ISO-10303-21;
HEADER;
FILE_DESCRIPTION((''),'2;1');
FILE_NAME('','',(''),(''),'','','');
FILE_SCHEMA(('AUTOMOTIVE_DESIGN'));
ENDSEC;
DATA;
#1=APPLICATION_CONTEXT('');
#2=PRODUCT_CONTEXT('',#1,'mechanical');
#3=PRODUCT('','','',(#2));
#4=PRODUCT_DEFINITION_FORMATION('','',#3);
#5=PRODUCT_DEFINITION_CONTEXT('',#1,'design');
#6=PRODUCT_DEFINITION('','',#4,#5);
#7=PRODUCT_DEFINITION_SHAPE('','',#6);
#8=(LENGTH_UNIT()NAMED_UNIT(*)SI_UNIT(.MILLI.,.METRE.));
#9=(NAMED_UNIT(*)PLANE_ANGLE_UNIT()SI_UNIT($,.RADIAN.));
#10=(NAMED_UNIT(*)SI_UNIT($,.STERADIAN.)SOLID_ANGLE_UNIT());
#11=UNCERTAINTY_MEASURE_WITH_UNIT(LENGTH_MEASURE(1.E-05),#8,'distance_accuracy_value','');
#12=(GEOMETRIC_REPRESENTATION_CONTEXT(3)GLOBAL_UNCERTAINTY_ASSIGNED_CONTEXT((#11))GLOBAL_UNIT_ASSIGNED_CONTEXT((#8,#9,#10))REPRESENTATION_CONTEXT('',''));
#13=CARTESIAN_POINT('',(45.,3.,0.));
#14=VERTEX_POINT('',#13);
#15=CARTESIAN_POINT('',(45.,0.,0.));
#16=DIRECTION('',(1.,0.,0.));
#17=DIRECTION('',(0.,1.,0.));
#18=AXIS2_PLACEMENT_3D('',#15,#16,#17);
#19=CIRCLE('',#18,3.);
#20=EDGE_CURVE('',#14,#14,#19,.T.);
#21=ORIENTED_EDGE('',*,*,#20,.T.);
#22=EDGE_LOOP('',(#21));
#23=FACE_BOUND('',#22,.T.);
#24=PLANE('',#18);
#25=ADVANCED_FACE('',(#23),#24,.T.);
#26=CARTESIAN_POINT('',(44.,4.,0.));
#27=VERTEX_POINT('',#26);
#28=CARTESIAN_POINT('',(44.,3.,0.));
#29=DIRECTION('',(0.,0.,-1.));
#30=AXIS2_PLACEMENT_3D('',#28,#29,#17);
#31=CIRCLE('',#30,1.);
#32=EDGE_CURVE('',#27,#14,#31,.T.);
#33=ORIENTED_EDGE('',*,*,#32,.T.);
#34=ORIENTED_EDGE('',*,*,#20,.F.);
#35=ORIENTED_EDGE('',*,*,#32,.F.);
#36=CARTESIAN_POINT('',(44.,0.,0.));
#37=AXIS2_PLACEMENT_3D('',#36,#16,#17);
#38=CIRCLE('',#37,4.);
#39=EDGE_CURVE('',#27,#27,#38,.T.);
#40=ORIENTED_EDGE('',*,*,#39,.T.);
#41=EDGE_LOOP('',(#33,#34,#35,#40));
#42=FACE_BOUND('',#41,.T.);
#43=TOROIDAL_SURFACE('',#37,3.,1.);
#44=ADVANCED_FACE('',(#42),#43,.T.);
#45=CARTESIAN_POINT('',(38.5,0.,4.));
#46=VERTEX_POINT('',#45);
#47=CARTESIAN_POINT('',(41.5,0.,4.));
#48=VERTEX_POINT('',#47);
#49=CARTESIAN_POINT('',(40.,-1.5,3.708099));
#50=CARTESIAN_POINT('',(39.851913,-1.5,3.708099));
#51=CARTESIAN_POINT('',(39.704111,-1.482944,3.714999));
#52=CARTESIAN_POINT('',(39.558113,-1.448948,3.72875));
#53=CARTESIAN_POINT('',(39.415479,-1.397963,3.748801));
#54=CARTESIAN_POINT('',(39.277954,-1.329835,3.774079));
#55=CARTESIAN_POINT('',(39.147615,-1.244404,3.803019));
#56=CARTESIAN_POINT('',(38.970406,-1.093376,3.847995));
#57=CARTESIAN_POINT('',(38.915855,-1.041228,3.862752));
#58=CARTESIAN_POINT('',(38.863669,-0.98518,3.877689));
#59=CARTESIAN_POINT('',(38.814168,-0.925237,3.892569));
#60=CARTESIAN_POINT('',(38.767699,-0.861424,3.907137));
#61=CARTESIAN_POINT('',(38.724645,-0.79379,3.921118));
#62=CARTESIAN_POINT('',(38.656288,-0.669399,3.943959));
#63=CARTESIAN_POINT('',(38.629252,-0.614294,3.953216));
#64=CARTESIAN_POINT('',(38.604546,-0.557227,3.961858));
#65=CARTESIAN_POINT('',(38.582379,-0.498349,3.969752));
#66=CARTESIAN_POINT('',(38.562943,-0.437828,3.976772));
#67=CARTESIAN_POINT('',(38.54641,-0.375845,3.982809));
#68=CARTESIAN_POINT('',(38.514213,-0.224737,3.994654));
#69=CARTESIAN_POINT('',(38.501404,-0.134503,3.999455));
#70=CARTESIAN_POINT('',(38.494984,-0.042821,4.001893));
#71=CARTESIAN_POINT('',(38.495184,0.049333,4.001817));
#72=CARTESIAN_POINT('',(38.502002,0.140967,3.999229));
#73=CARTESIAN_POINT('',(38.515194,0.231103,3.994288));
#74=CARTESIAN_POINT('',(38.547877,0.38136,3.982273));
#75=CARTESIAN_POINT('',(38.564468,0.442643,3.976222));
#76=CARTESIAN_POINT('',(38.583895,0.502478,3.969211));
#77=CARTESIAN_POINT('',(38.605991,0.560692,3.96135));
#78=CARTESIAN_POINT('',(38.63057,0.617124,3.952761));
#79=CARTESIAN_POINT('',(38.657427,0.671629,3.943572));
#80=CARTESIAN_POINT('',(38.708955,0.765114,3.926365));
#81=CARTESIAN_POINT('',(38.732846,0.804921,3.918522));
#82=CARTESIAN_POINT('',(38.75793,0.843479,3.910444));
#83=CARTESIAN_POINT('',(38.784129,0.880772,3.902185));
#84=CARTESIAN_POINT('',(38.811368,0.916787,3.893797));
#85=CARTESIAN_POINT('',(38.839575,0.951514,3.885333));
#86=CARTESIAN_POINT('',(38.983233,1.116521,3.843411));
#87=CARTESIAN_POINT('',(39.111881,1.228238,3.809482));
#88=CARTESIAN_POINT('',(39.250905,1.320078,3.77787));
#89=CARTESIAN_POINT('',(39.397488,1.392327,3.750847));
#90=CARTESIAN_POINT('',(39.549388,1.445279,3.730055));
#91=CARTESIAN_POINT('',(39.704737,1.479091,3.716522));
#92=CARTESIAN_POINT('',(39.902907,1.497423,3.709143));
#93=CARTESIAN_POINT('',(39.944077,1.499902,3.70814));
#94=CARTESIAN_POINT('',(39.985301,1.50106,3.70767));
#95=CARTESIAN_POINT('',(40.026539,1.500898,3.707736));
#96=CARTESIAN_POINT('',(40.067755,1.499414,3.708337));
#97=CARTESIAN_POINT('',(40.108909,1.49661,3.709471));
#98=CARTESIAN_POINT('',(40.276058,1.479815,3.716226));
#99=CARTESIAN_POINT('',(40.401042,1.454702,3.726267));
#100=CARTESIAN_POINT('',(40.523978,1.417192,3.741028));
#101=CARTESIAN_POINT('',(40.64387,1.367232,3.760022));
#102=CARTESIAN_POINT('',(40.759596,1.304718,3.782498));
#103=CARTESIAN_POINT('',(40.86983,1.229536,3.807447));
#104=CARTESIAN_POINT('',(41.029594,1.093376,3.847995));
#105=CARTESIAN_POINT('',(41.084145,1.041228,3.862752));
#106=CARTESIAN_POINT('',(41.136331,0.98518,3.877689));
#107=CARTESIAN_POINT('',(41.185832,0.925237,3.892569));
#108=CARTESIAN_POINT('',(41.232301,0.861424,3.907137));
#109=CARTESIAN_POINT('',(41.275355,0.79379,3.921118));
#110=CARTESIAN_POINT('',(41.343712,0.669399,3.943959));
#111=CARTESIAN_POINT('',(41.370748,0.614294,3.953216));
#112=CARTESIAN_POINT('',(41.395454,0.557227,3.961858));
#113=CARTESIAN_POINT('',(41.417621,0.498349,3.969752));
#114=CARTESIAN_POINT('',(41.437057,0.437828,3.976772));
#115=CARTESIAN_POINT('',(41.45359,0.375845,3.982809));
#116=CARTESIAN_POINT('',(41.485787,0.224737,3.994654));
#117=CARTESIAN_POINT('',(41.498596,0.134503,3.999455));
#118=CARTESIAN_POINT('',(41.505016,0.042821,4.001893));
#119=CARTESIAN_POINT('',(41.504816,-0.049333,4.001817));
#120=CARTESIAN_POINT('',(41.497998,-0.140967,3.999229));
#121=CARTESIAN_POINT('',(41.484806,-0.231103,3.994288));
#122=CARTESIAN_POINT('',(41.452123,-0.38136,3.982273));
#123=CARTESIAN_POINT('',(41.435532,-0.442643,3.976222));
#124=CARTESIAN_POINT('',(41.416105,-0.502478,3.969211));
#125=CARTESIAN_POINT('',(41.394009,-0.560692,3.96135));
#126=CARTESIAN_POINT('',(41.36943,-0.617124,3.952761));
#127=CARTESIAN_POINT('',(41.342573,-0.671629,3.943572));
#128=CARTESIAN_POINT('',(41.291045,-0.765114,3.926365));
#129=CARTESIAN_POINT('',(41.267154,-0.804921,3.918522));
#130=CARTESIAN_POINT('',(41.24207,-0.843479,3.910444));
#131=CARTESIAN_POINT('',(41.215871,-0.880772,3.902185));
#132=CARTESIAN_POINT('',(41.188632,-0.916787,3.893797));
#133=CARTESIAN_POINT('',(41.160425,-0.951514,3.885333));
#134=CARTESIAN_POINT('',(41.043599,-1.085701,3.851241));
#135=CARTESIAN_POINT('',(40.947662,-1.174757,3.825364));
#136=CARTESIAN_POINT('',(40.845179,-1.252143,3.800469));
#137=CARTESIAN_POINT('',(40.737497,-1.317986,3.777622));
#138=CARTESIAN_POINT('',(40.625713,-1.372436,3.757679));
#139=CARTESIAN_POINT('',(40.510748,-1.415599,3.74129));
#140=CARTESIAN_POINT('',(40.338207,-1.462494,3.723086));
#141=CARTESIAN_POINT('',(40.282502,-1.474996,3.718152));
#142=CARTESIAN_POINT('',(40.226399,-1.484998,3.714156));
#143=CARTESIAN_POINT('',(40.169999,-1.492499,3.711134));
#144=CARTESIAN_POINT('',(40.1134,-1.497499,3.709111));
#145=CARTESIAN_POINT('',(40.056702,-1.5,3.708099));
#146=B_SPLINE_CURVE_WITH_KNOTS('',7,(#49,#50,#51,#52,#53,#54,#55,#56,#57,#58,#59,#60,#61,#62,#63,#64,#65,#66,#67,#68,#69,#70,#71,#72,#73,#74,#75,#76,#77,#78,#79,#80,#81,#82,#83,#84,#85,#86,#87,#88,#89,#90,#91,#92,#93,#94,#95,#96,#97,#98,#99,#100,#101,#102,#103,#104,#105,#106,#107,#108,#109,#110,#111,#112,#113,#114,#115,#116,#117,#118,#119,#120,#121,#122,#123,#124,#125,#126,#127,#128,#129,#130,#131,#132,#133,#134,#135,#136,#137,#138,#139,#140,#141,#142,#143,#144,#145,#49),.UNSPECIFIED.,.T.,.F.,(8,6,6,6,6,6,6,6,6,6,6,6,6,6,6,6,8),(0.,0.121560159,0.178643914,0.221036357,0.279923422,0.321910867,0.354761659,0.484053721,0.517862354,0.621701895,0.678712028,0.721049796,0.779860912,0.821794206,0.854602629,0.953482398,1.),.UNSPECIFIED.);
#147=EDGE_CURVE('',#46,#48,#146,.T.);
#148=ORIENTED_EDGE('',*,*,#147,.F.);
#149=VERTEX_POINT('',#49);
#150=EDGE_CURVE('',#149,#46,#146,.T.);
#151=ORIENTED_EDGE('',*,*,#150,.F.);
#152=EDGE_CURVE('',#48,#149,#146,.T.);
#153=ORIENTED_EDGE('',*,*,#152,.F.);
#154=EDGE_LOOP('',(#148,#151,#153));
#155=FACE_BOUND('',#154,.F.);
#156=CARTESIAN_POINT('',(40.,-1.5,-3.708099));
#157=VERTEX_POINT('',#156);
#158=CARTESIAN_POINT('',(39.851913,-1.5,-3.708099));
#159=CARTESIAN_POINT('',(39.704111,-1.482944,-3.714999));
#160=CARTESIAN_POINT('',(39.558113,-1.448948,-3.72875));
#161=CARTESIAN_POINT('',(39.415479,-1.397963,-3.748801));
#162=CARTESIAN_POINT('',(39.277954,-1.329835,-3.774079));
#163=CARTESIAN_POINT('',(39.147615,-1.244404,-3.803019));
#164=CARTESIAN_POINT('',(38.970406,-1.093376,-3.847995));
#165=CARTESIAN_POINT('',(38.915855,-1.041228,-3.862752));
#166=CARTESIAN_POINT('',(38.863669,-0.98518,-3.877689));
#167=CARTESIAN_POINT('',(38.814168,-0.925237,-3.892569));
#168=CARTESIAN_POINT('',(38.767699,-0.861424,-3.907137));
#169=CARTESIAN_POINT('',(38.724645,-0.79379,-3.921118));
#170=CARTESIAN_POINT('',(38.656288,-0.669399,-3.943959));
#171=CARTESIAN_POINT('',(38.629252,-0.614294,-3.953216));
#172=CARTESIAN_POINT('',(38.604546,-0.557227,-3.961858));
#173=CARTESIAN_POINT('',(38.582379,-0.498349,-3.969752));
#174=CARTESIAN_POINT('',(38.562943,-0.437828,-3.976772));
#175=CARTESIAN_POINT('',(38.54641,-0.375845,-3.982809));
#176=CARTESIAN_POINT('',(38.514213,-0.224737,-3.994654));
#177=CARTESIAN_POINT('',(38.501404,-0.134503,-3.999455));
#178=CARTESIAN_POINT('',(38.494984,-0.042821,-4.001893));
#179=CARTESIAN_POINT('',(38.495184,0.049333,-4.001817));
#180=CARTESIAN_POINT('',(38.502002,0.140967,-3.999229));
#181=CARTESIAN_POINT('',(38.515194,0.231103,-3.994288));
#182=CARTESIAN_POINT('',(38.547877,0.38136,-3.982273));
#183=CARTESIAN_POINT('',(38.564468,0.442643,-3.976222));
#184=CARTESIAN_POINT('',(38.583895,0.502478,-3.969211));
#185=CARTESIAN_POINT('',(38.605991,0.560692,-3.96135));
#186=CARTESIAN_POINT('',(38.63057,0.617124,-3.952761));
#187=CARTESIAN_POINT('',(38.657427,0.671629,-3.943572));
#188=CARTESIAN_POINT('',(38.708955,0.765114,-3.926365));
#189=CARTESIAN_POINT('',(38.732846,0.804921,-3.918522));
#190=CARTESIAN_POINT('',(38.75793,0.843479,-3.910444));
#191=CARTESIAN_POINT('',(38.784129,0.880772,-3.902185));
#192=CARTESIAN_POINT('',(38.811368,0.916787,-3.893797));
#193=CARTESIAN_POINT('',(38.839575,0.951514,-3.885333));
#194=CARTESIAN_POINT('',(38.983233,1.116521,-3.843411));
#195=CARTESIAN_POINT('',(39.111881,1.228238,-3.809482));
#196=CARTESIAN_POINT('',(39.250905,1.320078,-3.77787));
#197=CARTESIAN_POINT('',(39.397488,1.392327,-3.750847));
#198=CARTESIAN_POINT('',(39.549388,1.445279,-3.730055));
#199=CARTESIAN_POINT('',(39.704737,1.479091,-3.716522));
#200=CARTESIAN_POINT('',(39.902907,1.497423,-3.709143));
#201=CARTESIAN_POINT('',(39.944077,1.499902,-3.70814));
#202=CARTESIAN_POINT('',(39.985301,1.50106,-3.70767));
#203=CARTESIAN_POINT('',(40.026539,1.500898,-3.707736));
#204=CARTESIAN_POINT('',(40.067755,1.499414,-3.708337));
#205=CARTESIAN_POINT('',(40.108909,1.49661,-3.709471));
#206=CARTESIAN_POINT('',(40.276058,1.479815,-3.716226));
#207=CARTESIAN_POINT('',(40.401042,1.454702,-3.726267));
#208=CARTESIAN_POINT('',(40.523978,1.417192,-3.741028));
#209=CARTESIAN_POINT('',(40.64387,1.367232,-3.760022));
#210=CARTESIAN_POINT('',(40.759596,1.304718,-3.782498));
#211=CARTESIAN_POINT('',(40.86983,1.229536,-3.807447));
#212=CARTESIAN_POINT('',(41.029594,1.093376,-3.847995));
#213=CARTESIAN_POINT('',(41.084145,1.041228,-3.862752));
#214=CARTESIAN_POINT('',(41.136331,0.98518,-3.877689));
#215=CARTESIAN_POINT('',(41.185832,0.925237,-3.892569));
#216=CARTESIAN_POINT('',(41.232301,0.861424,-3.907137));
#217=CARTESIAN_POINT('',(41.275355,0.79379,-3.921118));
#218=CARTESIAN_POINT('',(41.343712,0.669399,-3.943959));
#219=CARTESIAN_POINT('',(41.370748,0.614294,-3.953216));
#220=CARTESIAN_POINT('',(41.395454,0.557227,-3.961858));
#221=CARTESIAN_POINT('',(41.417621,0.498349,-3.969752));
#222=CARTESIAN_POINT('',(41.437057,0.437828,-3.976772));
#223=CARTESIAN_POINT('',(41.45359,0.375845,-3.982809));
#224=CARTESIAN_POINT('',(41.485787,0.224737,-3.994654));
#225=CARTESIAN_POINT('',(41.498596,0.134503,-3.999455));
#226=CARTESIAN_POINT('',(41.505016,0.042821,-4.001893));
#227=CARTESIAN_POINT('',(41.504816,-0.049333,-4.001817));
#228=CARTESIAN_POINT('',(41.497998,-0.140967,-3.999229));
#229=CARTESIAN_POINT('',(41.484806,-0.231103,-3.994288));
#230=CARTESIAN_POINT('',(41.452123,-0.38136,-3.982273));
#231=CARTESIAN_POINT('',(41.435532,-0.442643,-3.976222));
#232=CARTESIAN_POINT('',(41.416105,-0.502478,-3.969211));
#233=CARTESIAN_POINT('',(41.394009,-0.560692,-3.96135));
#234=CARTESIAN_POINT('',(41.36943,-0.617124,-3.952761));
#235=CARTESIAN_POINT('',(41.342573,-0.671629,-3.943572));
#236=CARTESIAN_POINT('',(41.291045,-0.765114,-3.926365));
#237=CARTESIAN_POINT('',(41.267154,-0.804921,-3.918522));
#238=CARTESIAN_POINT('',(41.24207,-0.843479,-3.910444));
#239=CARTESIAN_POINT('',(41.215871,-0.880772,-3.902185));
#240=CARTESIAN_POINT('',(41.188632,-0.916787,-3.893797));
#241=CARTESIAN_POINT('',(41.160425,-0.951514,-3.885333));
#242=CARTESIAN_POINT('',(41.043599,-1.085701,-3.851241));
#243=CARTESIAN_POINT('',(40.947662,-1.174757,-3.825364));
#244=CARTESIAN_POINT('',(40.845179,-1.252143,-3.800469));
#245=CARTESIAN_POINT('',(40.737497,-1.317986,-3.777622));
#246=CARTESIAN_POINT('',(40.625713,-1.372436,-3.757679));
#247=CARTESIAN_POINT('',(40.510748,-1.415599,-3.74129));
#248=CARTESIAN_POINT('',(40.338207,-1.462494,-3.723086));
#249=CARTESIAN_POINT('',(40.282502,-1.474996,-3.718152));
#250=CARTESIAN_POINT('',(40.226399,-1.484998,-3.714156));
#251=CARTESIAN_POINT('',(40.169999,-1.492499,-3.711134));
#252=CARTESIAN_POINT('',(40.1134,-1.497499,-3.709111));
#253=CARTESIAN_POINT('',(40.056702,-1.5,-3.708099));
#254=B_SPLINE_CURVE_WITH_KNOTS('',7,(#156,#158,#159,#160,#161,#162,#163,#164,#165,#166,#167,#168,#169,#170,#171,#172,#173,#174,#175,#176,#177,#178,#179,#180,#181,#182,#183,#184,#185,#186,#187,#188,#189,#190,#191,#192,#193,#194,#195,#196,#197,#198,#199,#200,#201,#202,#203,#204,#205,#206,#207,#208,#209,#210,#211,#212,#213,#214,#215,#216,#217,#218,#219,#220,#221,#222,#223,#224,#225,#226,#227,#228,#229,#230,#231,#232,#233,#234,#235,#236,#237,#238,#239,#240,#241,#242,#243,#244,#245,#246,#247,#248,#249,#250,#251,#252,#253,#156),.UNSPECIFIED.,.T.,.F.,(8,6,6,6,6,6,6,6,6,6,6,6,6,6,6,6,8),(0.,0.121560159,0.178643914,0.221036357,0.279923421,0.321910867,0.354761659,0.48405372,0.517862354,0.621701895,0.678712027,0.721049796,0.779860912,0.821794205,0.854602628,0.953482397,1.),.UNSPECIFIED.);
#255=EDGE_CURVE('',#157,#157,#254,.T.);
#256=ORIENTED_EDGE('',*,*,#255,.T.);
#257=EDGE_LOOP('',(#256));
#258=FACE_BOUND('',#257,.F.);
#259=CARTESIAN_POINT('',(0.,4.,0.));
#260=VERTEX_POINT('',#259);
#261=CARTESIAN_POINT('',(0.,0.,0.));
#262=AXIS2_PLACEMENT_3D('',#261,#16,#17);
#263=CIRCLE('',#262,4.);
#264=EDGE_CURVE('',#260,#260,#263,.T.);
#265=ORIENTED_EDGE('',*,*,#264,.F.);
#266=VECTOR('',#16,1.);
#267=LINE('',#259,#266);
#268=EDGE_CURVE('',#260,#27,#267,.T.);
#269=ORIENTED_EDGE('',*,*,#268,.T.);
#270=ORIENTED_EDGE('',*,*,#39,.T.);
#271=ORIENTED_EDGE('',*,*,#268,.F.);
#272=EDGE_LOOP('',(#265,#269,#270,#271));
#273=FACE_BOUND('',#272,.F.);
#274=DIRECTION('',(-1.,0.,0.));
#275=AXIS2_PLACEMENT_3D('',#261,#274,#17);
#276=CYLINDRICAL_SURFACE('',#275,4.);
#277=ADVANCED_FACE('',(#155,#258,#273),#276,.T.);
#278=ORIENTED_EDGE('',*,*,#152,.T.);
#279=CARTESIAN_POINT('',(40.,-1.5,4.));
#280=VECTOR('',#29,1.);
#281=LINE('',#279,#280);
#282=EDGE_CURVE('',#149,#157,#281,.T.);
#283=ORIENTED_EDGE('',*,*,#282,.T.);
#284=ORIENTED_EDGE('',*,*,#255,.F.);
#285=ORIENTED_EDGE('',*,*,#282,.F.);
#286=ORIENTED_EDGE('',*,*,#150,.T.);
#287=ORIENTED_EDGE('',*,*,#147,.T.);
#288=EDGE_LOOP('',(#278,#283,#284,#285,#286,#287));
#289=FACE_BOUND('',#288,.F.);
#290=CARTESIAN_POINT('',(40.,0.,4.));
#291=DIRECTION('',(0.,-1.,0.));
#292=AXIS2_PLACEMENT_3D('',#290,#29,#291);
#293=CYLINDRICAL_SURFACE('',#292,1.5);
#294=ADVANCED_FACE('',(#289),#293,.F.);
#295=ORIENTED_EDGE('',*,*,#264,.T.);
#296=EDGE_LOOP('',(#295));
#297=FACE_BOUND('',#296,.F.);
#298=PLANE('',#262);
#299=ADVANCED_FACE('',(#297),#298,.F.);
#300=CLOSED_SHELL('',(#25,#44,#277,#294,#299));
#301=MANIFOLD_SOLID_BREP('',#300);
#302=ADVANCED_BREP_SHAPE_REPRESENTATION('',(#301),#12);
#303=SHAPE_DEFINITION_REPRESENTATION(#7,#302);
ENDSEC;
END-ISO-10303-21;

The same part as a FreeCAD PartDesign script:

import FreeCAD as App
import Part
import Sketcher
from FreeCAD import Vector


def edges_at(feature, points):
    """Names of the edges that pass closest to the given points."""
    edges = feature.Shape.Edges
    near = lambda p: min(range(len(edges)), key=lambda i: edges[i].distToShape(Part.Vertex(*p))[0])
    return sorted({f"Edge{near(p) + 1}" for p in points})

doc = App.newDocument("Part")
body = doc.addObject("PartDesign::Body", "Body")

# Sketch on YZ plane
sketch1 = doc.addObject("Sketcher::SketchObject", "Sketch")
body.addObject(sketch1)
sketch1.AttachmentSupport = (doc.YZ_Plane, [""])
sketch1.MapMode = "FlatFace"
sketch1.addGeometry(Part.Circle(Vector(0, 0, 0), Vector(0, 0, 1), 4), False)
sketch1.addConstraint([
    Sketcher.Constraint("Coincident", 0, 3, -1, 1),
    Sketcher.Constraint("Diameter", 0, 8.0),
])
pad1 = doc.addObject("PartDesign::Pad", "Pad")
body.addObject(pad1)
pad1.Profile = sketch1
pad1.Length = 45
doc.recompute()

fillet = doc.addObject("PartDesign::Fillet", "Fillet")
body.addObject(fillet)
fillet.Base = (pad1, edges_at(pad1, [(45, -4, 0)]))
fillet.Radius = 1

# Sketch on XY plane
sketch2 = doc.addObject("Sketcher::SketchObject", "Sketch001")
body.addObject(sketch2)
sketch2.AttachmentSupport = (doc.XY_Plane, [""])
sketch2.MapMode = "FlatFace"
sketch2.AttachmentOffset = App.Placement(Vector(0, 0, 4), App.Rotation())
sketch2.addGeometry(Part.Circle(Vector(40, 0, 0), Vector(0, 0, 1), 1.5), False)
sketch2.addConstraint([
    Sketcher.Constraint("PointOnObject", 0, 3, -1),
    Sketcher.Constraint("Diameter", 0, 3.0),
    Sketcher.Constraint("DistanceX", -1, 1, 0, 3, 40.0),
])
doc.recompute()
hole = doc.addObject("PartDesign::Hole", "Hole")
body.addObject(hole)
hole.Profile = sketch2
hole.ThreadType = "None"
hole.Diameter = 3
hole.DepthType = "ThroughAll"

doc.recompute()
